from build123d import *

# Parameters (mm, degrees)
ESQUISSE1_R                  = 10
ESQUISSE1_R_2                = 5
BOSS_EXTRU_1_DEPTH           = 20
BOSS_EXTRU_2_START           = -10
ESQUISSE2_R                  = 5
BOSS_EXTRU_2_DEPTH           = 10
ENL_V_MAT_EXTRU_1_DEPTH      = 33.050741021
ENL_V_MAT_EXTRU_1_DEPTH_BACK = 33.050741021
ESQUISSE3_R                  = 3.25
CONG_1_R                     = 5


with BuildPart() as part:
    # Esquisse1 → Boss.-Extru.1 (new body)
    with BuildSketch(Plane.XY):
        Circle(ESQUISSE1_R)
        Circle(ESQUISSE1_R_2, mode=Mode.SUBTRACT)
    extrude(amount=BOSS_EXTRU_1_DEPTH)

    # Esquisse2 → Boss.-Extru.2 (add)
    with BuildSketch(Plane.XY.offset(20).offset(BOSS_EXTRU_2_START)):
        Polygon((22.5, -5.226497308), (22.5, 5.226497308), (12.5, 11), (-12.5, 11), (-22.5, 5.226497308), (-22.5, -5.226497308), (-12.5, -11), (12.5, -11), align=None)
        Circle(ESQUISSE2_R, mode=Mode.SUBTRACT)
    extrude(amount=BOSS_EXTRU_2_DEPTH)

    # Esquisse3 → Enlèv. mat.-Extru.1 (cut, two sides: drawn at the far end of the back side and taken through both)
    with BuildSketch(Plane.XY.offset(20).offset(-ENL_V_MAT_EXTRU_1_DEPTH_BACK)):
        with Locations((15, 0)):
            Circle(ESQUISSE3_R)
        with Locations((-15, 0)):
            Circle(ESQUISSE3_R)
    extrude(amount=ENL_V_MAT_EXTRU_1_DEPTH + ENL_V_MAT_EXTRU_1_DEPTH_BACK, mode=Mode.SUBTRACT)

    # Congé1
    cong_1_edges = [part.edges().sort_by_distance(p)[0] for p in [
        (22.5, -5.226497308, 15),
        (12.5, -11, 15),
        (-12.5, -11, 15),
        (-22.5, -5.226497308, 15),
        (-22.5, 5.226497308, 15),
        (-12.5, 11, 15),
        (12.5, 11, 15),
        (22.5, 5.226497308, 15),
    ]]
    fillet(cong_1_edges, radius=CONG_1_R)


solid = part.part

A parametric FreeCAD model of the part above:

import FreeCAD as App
import Part
import Sketcher
Q = App.Units.Quantity


def edges_at(feature, points):
    """Names of the edges that pass closest to the given points."""
    edges = feature.Shape.Edges
    near = lambda p: min(range(len(edges)), key=lambda i: edges[i].distToShape(Part.Vertex(*p))[0])
    return sorted({f"Edge{near(p) + 1}" for p in points})

doc = App.newDocument("Part")
body = doc.addObject("PartDesign::Body", "Body")

# Sketch on XY plane
sketch1 = body.newObject("Sketcher::SketchObject", "Sketch")
sketch1.AttachmentSupport = (doc.getObject("XY_Plane"), [""])
sketch1.MapMode = "FlatFace"
sketch1.addGeometry(Part.Circle(App.Vector(0, 0, 0), App.Vector(0, 0, 1), 10), False)
sketch1.addGeometry(Part.Circle(App.Vector(0, 0, 0), App.Vector(0, 0, 1), 5), False)
sketch1.addConstraint(Sketcher.Constraint("Coincident", 0, 3, -1, 1))
sketch1.addConstraint(Sketcher.Constraint("Coincident", 1, 3, -1, 1))
sketch1.addConstraint(Sketcher.Constraint("Diameter", 0, 20.0))
sketch1.addConstraint(Sketcher.Constraint("Diameter", 1, 10.0))
pad1 = body.newObject("PartDesign::Pad", "Pad")
pad1.Profile = sketch1
pad1.Length = 20

# Sketch on XY plane
sketch2 = body.newObject("Sketcher::SketchObject", "Sketch001")
sketch2.AttachmentSupport = (doc.getObject("XY_Plane"), [""])
sketch2.MapMode = "FlatFace"
sketch2.AttachmentOffset = App.Placement(App.Vector(0, 0, 10), App.Rotation())
sketch2.addGeometry(Part.LineSegment(App.Vector(22, -5, 0), App.Vector(22, 5, 0)), False)
sketch2.addGeometry(Part.LineSegment(App.Vector(22, 5, 0), App.Vector(12, 11, 0)), False)
sketch2.addGeometry(Part.LineSegment(App.Vector(12, 11, 0), App.Vector(-12, 11, 0)), False)
sketch2.addGeometry(Part.LineSegment(App.Vector(-12, 11, 0), App.Vector(-22, 5, 0)), False)
sketch2.addGeometry(Part.LineSegment(App.Vector(-22, 5, 0), App.Vector(-22, -5, 0)), False)
sketch2.addGeometry(Part.LineSegment(App.Vector(-22, -5, 0), App.Vector(-12, -11, 0)), False)
sketch2.addGeometry(Part.LineSegment(App.Vector(-12, -11, 0), App.Vector(12, -11, 0)), False)
sketch2.addGeometry(Part.LineSegment(App.Vector(12, -11, 0), App.Vector(22, -5, 0)), False)
sketch2.addGeometry(Part.Circle(App.Vector(0, 0, 0), App.Vector(0, 0, 1), 5), False)
sketch2.addConstraint(Sketcher.Constraint("Coincident", 0, 2, 1, 1))
sketch2.addConstraint(Sketcher.Constraint("Coincident", 1, 2, 2, 1))
sketch2.addConstraint(Sketcher.Constraint("Coincident", 2, 2, 3, 1))
sketch2.addConstraint(Sketcher.Constraint("Coincident", 3, 2, 4, 1))
sketch2.addConstraint(Sketcher.Constraint("Coincident", 4, 2, 5, 1))
sketch2.addConstraint(Sketcher.Constraint("Coincident", 5, 2, 6, 1))
sketch2.addConstraint(Sketcher.Constraint("Coincident", 6, 2, 7, 1))
sketch2.addConstraint(Sketcher.Constraint("Coincident", 7, 2, 0, 1))
sketch2.addConstraint(Sketcher.Constraint("Vertical", 0))
sketch2.addConstraint(Sketcher.Constraint("Horizontal", 2))
sketch2.addConstraint(Sketcher.Constraint("Vertical", 4))
sketch2.addConstraint(Sketcher.Constraint("Horizontal", 6))
sketch2.addConstraint(Sketcher.Constraint("Coincident", 8, 3, -1, 1))
sketch2.addConstraint(Sketcher.Constraint("Symmetric", 0, 2, 4, 2, -1, 1))
sketch2.addConstraint(Sketcher.Constraint("Symmetric", 1, 2, 5, 2, -1, 1))
sketch2.addConstraint(Sketcher.Constraint("Parallel", 3, 7))
sketch2.addConstraint(Sketcher.Constraint("Horizontal", 0, 2, 3, 2))
sketch2.addConstraint(Sketcher.Constraint("Horizontal", 4, 2, 7, 2))
sketch2.addConstraint(Sketcher.Constraint("Vertical", 2, 2, 5, 2))
sketch2.addConstraint(Sketcher.Constraint("Diameter", 8, 10.0))
sketch2.addConstraint(Sketcher.Constraint("DistanceX", 2, 2, 2, 1, 25.0))
sketch2.addConstraint(Sketcher.Constraint("Angle", 1, Q("150 deg")))
sketch2.addConstraint(Sketcher.Constraint("DistanceY", -1, 1, 1, 2, 11.0))
sketch2.addConstraint(Sketcher.Constraint("DistanceX", 1, 2, 0, 2, 10.0))
pad2 = body.newObject("PartDesign::Pad", "Pad001")
pad2.Profile = sketch2
pad2.Length = 10

# Sketch on XY plane
sketch3 = body.newObject("Sketcher::SketchObject", "Sketch002")
sketch3.AttachmentSupport = (doc.getObject("XY_Plane"), [""])
sketch3.MapMode = "FlatFace"
sketch3.AttachmentOffset = App.Placement(App.Vector(0, 0, 20), App.Rotation())
sketch3.addGeometry(Part.Circle(App.Vector(15, 0, 0), App.Vector(0, 0, 1), 3.2), False)
sketch3.addGeometry(Part.Circle(App.Vector(-15, 0, 0), App.Vector(0, 0, 1), 3.2), False)
sketch3.addConstraint(Sketcher.Constraint("Equal", 0, 1))
sketch3.addConstraint(Sketcher.Constraint("Symmetric", 0, 3, 1, 3, -1, 1))
sketch3.addConstraint(Sketcher.Constraint("PointOnObject", 0, 3, -1))
sketch3.addConstraint(Sketcher.Constraint("Diameter", 0, 6.5))
sketch3.addConstraint(Sketcher.Constraint("DistanceX", -1, 1, 0, 3, 15.0))
pocket1 = body.newObject("PartDesign::Pocket", "Pocket")
pocket1.Profile = sketch3
pocket1.Type = "ThroughAll"
pocket1.Midplane = True
doc.recompute()

fillet = body.newObject("PartDesign::Fillet", "Fillet")
fillet.Base = (pocket1, edges_at(pocket1, [
    (22.5, -5.226, 15),
    (12.5, -11, 15),
    (-12.5, -11, 15),
    (-22.5, -5.226, 15),
    (-22.5, 5.226, 15),
    (-12.5, 11, 15),
    (12.5, 11, 15),
    (22.5, 5.226, 15),
]))
fillet.Radius = 5

doc.recompute()
